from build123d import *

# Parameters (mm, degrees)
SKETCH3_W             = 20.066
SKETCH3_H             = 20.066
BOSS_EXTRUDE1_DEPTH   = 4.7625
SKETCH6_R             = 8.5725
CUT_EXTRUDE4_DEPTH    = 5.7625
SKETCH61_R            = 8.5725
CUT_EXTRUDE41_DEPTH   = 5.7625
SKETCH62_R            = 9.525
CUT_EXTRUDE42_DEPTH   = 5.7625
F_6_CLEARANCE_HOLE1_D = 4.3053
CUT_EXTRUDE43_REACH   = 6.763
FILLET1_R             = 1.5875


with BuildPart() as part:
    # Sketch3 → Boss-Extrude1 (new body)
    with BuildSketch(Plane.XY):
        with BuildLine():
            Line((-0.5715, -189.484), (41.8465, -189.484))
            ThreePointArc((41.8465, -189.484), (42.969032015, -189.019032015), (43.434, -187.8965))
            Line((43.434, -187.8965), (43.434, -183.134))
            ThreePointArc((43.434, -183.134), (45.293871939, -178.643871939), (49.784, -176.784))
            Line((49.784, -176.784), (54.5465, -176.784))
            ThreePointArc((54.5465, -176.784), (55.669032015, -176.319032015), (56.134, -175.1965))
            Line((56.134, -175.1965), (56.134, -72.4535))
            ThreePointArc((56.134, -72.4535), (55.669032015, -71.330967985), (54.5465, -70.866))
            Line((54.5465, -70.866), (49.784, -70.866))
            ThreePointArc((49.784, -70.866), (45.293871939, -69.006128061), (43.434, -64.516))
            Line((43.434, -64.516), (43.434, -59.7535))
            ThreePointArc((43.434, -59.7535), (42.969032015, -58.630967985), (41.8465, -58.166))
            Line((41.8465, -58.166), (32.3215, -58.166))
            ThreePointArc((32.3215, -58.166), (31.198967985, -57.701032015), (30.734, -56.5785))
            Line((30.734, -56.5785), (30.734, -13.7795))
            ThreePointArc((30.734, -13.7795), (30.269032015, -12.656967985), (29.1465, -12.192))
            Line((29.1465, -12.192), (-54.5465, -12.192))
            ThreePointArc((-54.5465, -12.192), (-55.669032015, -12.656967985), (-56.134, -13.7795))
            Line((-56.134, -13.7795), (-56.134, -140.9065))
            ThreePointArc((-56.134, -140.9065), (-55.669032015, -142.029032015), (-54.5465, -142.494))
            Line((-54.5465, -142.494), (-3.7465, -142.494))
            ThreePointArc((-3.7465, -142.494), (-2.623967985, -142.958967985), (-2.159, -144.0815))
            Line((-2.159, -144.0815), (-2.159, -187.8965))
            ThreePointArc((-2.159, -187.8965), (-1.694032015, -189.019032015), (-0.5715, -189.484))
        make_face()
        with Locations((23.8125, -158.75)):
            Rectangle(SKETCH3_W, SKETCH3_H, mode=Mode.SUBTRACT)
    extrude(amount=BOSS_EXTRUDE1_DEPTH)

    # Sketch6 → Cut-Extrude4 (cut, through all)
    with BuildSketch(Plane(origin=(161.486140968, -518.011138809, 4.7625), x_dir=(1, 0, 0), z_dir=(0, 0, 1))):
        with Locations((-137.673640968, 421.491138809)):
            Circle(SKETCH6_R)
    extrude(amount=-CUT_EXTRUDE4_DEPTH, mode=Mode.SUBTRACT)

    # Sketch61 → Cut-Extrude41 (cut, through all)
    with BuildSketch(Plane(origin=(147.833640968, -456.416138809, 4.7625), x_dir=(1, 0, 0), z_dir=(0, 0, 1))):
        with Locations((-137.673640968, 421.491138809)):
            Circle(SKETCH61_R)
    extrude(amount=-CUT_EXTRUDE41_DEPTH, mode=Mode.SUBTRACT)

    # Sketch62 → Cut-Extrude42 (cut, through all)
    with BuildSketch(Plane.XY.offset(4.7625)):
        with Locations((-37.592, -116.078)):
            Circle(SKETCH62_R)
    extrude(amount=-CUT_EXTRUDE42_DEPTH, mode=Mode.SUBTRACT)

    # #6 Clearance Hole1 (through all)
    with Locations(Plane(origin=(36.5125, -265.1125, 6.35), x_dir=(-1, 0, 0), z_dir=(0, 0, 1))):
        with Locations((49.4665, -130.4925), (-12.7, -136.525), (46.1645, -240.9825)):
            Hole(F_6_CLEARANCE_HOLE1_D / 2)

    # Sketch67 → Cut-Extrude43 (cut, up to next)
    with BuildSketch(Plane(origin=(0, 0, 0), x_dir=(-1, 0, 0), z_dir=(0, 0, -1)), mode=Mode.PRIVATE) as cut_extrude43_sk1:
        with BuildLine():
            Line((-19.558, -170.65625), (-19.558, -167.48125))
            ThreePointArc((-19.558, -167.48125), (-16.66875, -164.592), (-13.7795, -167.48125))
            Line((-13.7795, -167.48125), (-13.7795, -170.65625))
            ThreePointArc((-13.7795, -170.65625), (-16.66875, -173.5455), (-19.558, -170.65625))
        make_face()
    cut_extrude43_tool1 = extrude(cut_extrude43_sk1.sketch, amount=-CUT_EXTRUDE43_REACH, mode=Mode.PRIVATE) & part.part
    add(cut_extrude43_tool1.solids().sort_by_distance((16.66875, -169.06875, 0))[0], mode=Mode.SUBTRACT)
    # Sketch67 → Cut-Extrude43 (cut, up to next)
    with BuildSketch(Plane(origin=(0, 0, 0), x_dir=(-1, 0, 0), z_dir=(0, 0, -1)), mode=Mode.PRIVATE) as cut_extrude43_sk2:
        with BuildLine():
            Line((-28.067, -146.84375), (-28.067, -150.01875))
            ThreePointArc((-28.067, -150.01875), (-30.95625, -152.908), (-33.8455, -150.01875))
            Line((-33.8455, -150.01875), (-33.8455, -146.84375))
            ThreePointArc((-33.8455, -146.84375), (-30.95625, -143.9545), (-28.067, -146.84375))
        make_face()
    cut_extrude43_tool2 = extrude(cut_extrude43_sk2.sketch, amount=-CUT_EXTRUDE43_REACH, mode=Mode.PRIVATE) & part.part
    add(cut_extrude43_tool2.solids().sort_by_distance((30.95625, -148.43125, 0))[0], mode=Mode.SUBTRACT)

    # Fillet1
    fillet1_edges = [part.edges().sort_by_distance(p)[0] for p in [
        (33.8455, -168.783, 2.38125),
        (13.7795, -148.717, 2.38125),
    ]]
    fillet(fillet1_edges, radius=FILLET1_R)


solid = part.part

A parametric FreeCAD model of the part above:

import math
import FreeCAD as App
import Part
import Sketcher

V = App.Vector
Q = App.Units.Quantity


def edges_at(feature, points):
    """Names of the edges that pass closest to the given points."""
    edges = feature.Shape.Edges
    near = lambda p: min(range(len(edges)), key=lambda i: edges[i].distToShape(Part.Vertex(*p))[0])
    return sorted({f"Edge{near(p) + 1}" for p in points})


def add_polygon(sketch, points):
    """Adds a closed chain of lines whose ends are joined by coincident constraints."""
    first, n = sketch.GeometryCount, len(points)
    for a, b in zip(points, points[1:] + points[:1]):
        sketch.addGeometry(Part.LineSegment(App.Vector(*a, 0), App.Vector(*b, 0)), False)
    for i in range(n):
        sketch.addConstraint(Sketcher.Constraint("Coincident", first + i, 2, first + (i + 1) % n, 1))

doc = App.newDocument("Part")
body = doc.addObject("PartDesign::Body", "Body")

# Sketch on XY plane
sketch1 = body.newObject("Sketcher::SketchObject", "Sketch")
sketch1.AttachmentSupport = (doc.getObject("XY_Plane"), [""])
sketch1.MapMode = "FlatFace"
sketch1.addGeometry(Part.LineSegment(V(-0.5715, -189.484, 0), V(41.8465, -189.484, 0)), False)  # 0
sketch1.addGeometry(Part.ArcOfCircle(Part.Circle(V(41.8465, -187.8965, 0), V(0, 0, 1), 1.5875), math.radians(-90), math.radians(0)), False)  # 1
sketch1.addGeometry(Part.LineSegment(V(43.434, -187.8965, 0), V(43.434, -183.134, 0)), False)  # 2
sketch1.addGeometry(Part.ArcOfCircle(Part.Circle(V(49.784, -183.134, 0), V(0, 0, 1), 6.35), math.radians(90), math.radians(180)), False)  # 3
sketch1.addGeometry(Part.LineSegment(V(49.784, -176.784, 0), V(54.5465, -176.784, 0)), False)  # 4
sketch1.addGeometry(Part.ArcOfCircle(Part.Circle(V(54.5465, -175.1965, 0), V(0, 0, 1), 1.5875), math.radians(-90), math.radians(0)), False)  # 5
sketch1.addGeometry(Part.LineSegment(V(56.134, -175.1965, 0), V(56.134, -72.4535, 0)), False)  # 6
sketch1.addGeometry(Part.ArcOfCircle(Part.Circle(V(54.5465, -72.4535, 0), V(0, 0, 1), 1.5875), math.radians(0), math.radians(90)), False)  # 7
sketch1.addGeometry(Part.LineSegment(V(54.5465, -70.866, 0), V(49.784, -70.866, 0)), False)  # 8
sketch1.addGeometry(Part.ArcOfCircle(Part.Circle(V(49.784, -64.516, 0), V(0, 0, 1), 6.35), math.radians(180), math.radians(270)), False)  # 9
sketch1.addGeometry(Part.LineSegment(V(43.434, -64.516, 0), V(43.434, -59.7535, 0)), False)  # 10
sketch1.addGeometry(Part.ArcOfCircle(Part.Circle(V(41.8465, -59.7535, 0), V(0, 0, 1), 1.5875), math.radians(0), math.radians(90)), False)  # 11
sketch1.addGeometry(Part.LineSegment(V(41.8465, -58.166, 0), V(32.3215, -58.166, 0)), False)  # 12
sketch1.addGeometry(Part.ArcOfCircle(Part.Circle(V(32.3215, -56.5785, 0), V(0, 0, 1), 1.5875), math.radians(180), math.radians(270)), False)  # 13
sketch1.addGeometry(Part.LineSegment(V(30.734, -56.5785, 0), V(30.734, -13.7795, 0)), False)  # 14
sketch1.addGeometry(Part.ArcOfCircle(Part.Circle(V(29.1465, -13.7795, 0), V(0, 0, 1), 1.5875), math.radians(0), math.radians(90)), False)  # 15
sketch1.addGeometry(Part.LineSegment(V(29.1465, -12.192, 0), V(-54.5465, -12.192, 0)), False)  # 16
sketch1.addGeometry(Part.ArcOfCircle(Part.Circle(V(-54.5465, -13.7795, 0), V(0, 0, 1), 1.5875), math.radians(90), math.radians(180)), False)  # 17
sketch1.addGeometry(Part.LineSegment(V(-56.134, -13.7795, 0), V(-56.134, -140.9065, 0)), False)  # 18
sketch1.addGeometry(Part.ArcOfCircle(Part.Circle(V(-54.5465, -140.9065, 0), V(0, 0, 1), 1.5875), math.radians(180), math.radians(270)), False)  # 19
sketch1.addGeometry(Part.LineSegment(V(-54.5465, -142.494, 0), V(-3.7465, -142.494, 0)), False)  # 20
sketch1.addGeometry(Part.ArcOfCircle(Part.Circle(V(-3.7465, -144.0815, 0), V(0, 0, 1), 1.5875), math.radians(0), math.radians(90)), False)  # 21
sketch1.addGeometry(Part.LineSegment(V(-2.159, -144.0815, 0), V(-2.159, -187.8965, 0)), False)  # 22
sketch1.addGeometry(Part.ArcOfCircle(Part.Circle(V(-0.5715, -187.8965, 0), V(0, 0, 1), 1.5875), math.radians(180), math.radians(270)), False)  # 23
add_polygon(sketch1, [(33.8455, -168.783), (13.7795, -168.783), (13.7795, -148.717), (33.8455, -148.717)])  # lines 24-27
sketch1.addConstraint(Sketcher.Constraint("Tangent", 0, 2, 1, 1))
sketch1.addConstraint(Sketcher.Constraint("Tangent", 1, 2, 2, 1))
sketch1.addConstraint(Sketcher.Constraint("Tangent", 2, 2, 3, 2))
sketch1.addConstraint(Sketcher.Constraint("Tangent", 3, 1, 4, 1))
sketch1.addConstraint(Sketcher.Constraint("Tangent", 4, 2, 5, 1))
sketch1.addConstraint(Sketcher.Constraint("Tangent", 5, 2, 6, 1))
sketch1.addConstraint(Sketcher.Constraint("Tangent", 6, 2, 7, 1))
sketch1.addConstraint(Sketcher.Constraint("Tangent", 7, 2, 8, 1))
sketch1.addConstraint(Sketcher.Constraint("Tangent", 8, 2, 9, 2))
sketch1.addConstraint(Sketcher.Constraint("Tangent", 9, 1, 10, 1))
sketch1.addConstraint(Sketcher.Constraint("Tangent", 10, 2, 11, 1))
sketch1.addConstraint(Sketcher.Constraint("Tangent", 11, 2, 12, 1))
sketch1.addConstraint(Sketcher.Constraint("Tangent", 12, 2, 13, 2))
sketch1.addConstraint(Sketcher.Constraint("Tangent", 13, 1, 14, 1))
sketch1.addConstraint(Sketcher.Constraint("Tangent", 14, 2, 15, 1))
sketch1.addConstraint(Sketcher.Constraint("Tangent", 15, 2, 16, 1))
sketch1.addConstraint(Sketcher.Constraint("Tangent", 16, 2, 17, 1))
sketch1.addConstraint(Sketcher.Constraint("Tangent", 17, 2, 18, 1))
sketch1.addConstraint(Sketcher.Constraint("Tangent", 18, 2, 19, 1))
sketch1.addConstraint(Sketcher.Constraint("Tangent", 19, 2, 20, 1))
sketch1.addConstraint(Sketcher.Constraint("Tangent", 20, 2, 21, 2))
sketch1.addConstraint(Sketcher.Constraint("Tangent", 21, 1, 22, 1))
sketch1.addConstraint(Sketcher.Constraint("Tangent", 22, 2, 23, 1))
sketch1.addConstraint(Sketcher.Constraint("Tangent", 23, 2, 0, 1))
sketch1.addConstraint(Sketcher.Constraint("Horizontal", 0))
sketch1.addConstraint(Sketcher.Constraint("Vertical", 2))
sketch1.addConstraint(Sketcher.Constraint("Horizontal", 4))
sketch1.addConstraint(Sketcher.Constraint("Vertical", 6))
sketch1.addConstraint(Sketcher.Constraint("Horizontal", 8))
sketch1.addConstraint(Sketcher.Constraint("Vertical", 10))
sketch1.addConstraint(Sketcher.Constraint("Horizontal", 12))
sketch1.addConstraint(Sketcher.Constraint("Vertical", 14))
sketch1.addConstraint(Sketcher.Constraint("Horizontal", 16))
sketch1.addConstraint(Sketcher.Constraint("Vertical", 18))
sketch1.addConstraint(Sketcher.Constraint("Horizontal", 20))
sketch1.addConstraint(Sketcher.Constraint("Vertical", 22))
sketch1.addConstraint(Sketcher.Constraint("Horizontal", 24))
sketch1.addConstraint(Sketcher.Constraint("Vertical", 25))
sketch1.addConstraint(Sketcher.Constraint("Horizontal", 26))
sketch1.addConstraint(Sketcher.Constraint("Vertical", 27))
sketch1.addConstraint(Sketcher.Constraint("Equal", 1, 5))
sketch1.addConstraint(Sketcher.Constraint("Equal", 5, 7))
sketch1.addConstraint(Sketcher.Constraint("Equal", 3, 9))
sketch1.addConstraint(Sketcher.Constraint("Equal", 7, 11))
sketch1.addConstraint(Sketcher.Constraint("Equal", 11, 13))
sketch1.addConstraint(Sketcher.Constraint("Equal", 13, 15))
sketch1.addConstraint(Sketcher.Constraint("Equal", 15, 17))
sketch1.addConstraint(Sketcher.Constraint("Equal", 17, 19))
sketch1.addConstraint(Sketcher.Constraint("Equal", 19, 21))
sketch1.addConstraint(Sketcher.Constraint("Equal", 21, 23))
sketch1.addConstraint(Sketcher.Constraint("Vertical", 3, 3, 9, 3))
sketch1.addConstraint(Sketcher.Constraint("Equal", 8, 2))
sketch1.addConstraint(Sketcher.Constraint("Equal", 2, 10))
sketch1.addConstraint(Sketcher.Constraint("Equal", 26, 25))
sketch1.addConstraint(Sketcher.Constraint("DistanceX", 20, 1, 20, 2, Q("2 in")))
sketch1.addConstraint(Sketcher.Constraint("Radius", 3, Q("0.25 in")))
sketch1.addConstraint(Sketcher.Constraint("Radius", 1, Q("0.0625 in")))
sketch1.addConstraint(Sketcher.Constraint("DistanceX", 15, 3, 7, 3, Q("1 in")))
sketch1.addConstraint(Sketcher.Constraint("DistanceX", 0, 1, 0, 2, Q("1.67 in")))
sketch1.addConstraint(Sketcher.Constraint("DistanceX", 24, 2, 24, 1, Q("0.79 in")))
sketch1.addConstraint(Sketcher.Constraint("DistanceX", 1, 3, 5, 3, Q("0.5 in")))
sketch1.addConstraint(Sketcher.Constraint("DistanceY", 2, 2, 19, 2, Q("1.6 in")))
sketch1.addConstraint(Sketcher.Constraint("DistanceY", 6, 1, 6, 2, Q("4.045 in")))
sketch1.addConstraint(Sketcher.Constraint("DistanceY", 14, 1, 14, 2, Q("1.685 in")))
sketch1.addConstraint(Sketcher.Constraint("DistanceX", -1, 1, 3, 3, Q("1.96 in")))
sketch1.addConstraint(Sketcher.Constraint("DistanceY", 3, 3, -1, 1, Q("7.21 in")))
sketch1.addConstraint(Sketcher.Constraint("DistanceX", 21, 3, 24, 2, Q("0.69 in")))
sketch1.addConstraint(Sketcher.Constraint("DistanceY", 24, 2, -1, 1, Q("6.645 in")))
pad1 = body.newObject("PartDesign::Pad", "Pad")
pad1.Profile = sketch1
pad1.Length = Q("0.1875 in")

# Sketch on XY plane
sketch2 = body.newObject("Sketcher::SketchObject", "Sketch001")
sketch2.AttachmentSupport = (doc.getObject("XY_Plane"), [""])
sketch2.MapMode = "FlatFace"
sketch2.AttachmentOffset = App.Placement(V(0, 0, 0.1875 * 25.4), App.Rotation())
sketch2.addGeometry(Part.Circle(V(23.8125, -96.52, 0), V(0, 0, 1), 8.5725), False)
sketch2.addConstraint(Sketcher.Constraint("Diameter", 0, Q("0.675 in")))
sketch2.addConstraint(Sketcher.Constraint("DistanceY", 0, 3, -1, 1, Q("3.8 in")))
sketch2.addConstraint(Sketcher.Constraint("DistanceX", -1, 1, 0, 3, Q("0.9375 in")))
pocket1 = body.newObject("PartDesign::Pocket", "Pocket")
pocket1.Profile = sketch2
pocket1.Type = "ThroughAll"

# Sketch on XY plane
sketch3 = body.newObject("Sketcher::SketchObject", "Sketch002")
sketch3.AttachmentSupport = (doc.getObject("XY_Plane"), [""])
sketch3.MapMode = "FlatFace"
sketch3.AttachmentOffset = App.Placement(V(0, 0, 0.1875 * 25.4), App.Rotation())
sketch3.addGeometry(Part.Circle(V(10.16, -34.925, 0), V(0, 0, 1), 8.5725), False)
sketch3.addConstraint(Sketcher.Constraint("Diameter", 0, Q("0.675 in")))
sketch3.addConstraint(Sketcher.Constraint("DistanceX", -1, 1, 0, 3, Q("0.4 in")))
sketch3.addConstraint(Sketcher.Constraint("DistanceY", 0, 3, -1, 1, Q("1.375 in")))
pocket2 = body.newObject("PartDesign::Pocket", "Pocket001")
pocket2.Profile = sketch3
pocket2.Type = "ThroughAll"

# Sketch on XY plane
sketch4 = body.newObject("Sketcher::SketchObject", "Sketch003")
sketch4.AttachmentSupport = (doc.getObject("XY_Plane"), [""])
sketch4.MapMode = "FlatFace"
sketch4.AttachmentOffset = App.Placement(V(0, 0, 0.1875 * 25.4), App.Rotation())
sketch4.addGeometry(Part.Circle(V(-37.592, -116.078, 0), V(0, 0, 1), 9.525), False)
sketch4.addConstraint(Sketcher.Constraint("Diameter", 0, Q("0.75 in")))
sketch4.addConstraint(Sketcher.Constraint("DistanceX", 0, 3, -1, 1, Q("1.48 in")))
sketch4.addConstraint(Sketcher.Constraint("DistanceY", 0, 3, -1, 1, Q("4.57 in")))
pocket3 = body.newObject("PartDesign::Pocket", "Pocket002")
pocket3.Profile = sketch4
pocket3.Type = "ThroughAll"

# Sketch on XY plane
sketch5 = body.newObject("Sketcher::SketchObject", "Sketch004")
sketch5.AttachmentSupport = (doc.getObject("XY_Plane"), [""])
sketch5.MapMode = "FlatFace"
sketch5.AttachmentOffset = App.Placement(V(0, 0, 0.25 * 25.4), App.Rotation())
sketch5.addGeometry(Part.Circle(V(-12.954, -134.62, 0), V(0, 0, 1), 2.15265), False)
sketch5.addGeometry(Part.Circle(V(49.2125, -128.5875, 0), V(0, 0, 1), 2.15265), False)
sketch5.addGeometry(Part.Circle(V(-9.652, -24.13, 0), V(0, 0, 1), 2.15265), False)
sketch5.addConstraint(Sketcher.Constraint("Equal", 0, 1))
sketch5.addConstraint(Sketcher.Constraint("Equal", 1, 2))
sketch5.addConstraint(Sketcher.Constraint("Diameter", 0, Q("0.1695 in")))
sketch5.addConstraint(Sketcher.Constraint("DistanceY", 0, 3, -1, 1, Q("5.3 in")))
sketch5.addConstraint(Sketcher.Constraint("DistanceX", 0, 3, -1, 1, Q("0.51 in")))
sketch5.addConstraint(Sketcher.Constraint("DistanceX", 2, 3, -1, 1, Q("0.38 in")))
sketch5.addConstraint(Sketcher.Constraint("DistanceY", 2, 3, -1, 1, Q("0.95 in")))
sketch5.addConstraint(Sketcher.Constraint("DistanceX", -1, 1, 1, 3, Q("1.9375 in")))
sketch5.addConstraint(Sketcher.Constraint("DistanceY", 1, 3, -1, 1, Q("5.0625 in")))
doc.recompute()
hole = body.newObject("PartDesign::Hole", "Hole")
hole.Profile = sketch5
hole.ThreadType = "None"
hole.Diameter = Q("0.1695 in")
hole.DepthType = "ThroughAll"

# Sketch on XY plane
sketch6 = body.newObject("Sketcher::SketchObject", "Sketch005")
sketch6.AttachmentSupport = (doc.getObject("XY_Plane"), [""])
sketch6.MapMode = "FlatFace"
sketch6.addGeometry(Part.LineSegment(V(19.558, -167.48125, 0), V(19.558, -170.65625, 0)), False)
sketch6.addGeometry(Part.ArcOfCircle(Part.Circle(V(16.66875, -170.65625, 0), V(0, 0, 1), 2.88925), math.radians(180), math.radians(360)), False)
sketch6.addGeometry(Part.LineSegment(V(13.7795, -170.65625, 0), V(13.7795, -167.48125, 0)), False)
sketch6.addGeometry(Part.ArcOfCircle(Part.Circle(V(16.66875, -167.48125, 0), V(0, 0, 1), 2.88925), math.radians(0), math.radians(180)), False)
sketch6.addConstraint(Sketcher.Constraint("Tangent", 0, 2, 1, 2))
sketch6.addConstraint(Sketcher.Constraint("Tangent", 1, 1, 2, 1))
sketch6.addConstraint(Sketcher.Constraint("Tangent", 2, 2, 3, 2))
sketch6.addConstraint(Sketcher.Constraint("Tangent", 3, 1, 0, 1))
sketch6.addConstraint(Sketcher.Constraint("Vertical", 0))
sketch6.addConstraint(Sketcher.Constraint("Vertical", 2))
sketch6.addConstraint(Sketcher.Constraint("DistanceY", 0, 2, 0, 1, Q("0.125 in")))
sketch6.addConstraint(Sketcher.Constraint("DistanceX", -1, 1, 0, 2, Q("0.77 in")))
sketch6.addConstraint(Sketcher.Constraint("DistanceX", -1, 1, 1, 3, Q("0.65625 in")))
sketch6.addConstraint(Sketcher.Constraint("DistanceY", 1, 3, -1, 1, Q("6.71875 in")))
pocket4 = body.newObject("PartDesign::Pocket", "Pocket003")
pocket4.Profile = sketch6
pocket4.Type = "UpToFirst"
pocket4.Reversed = True

# Sketch on XY plane
sketch7 = body.newObject("Sketcher::SketchObject", "Sketch006")
sketch7.AttachmentSupport = (doc.getObject("XY_Plane"), [""])
sketch7.MapMode = "FlatFace"
sketch7.addGeometry(Part.LineSegment(V(28.067, -150.01875, 0), V(28.067, -146.84375, 0)), False)
sketch7.addGeometry(Part.ArcOfCircle(Part.Circle(V(30.95625, -146.84375, 0), V(0, 0, 1), 2.88925), math.radians(0), math.radians(180)), False)
sketch7.addGeometry(Part.LineSegment(V(33.8455, -146.84375, 0), V(33.8455, -150.01875, 0)), False)
sketch7.addGeometry(Part.ArcOfCircle(Part.Circle(V(30.95625, -150.01875, 0), V(0, 0, 1), 2.88925), math.radians(180), math.radians(360)), False)
sketch7.addConstraint(Sketcher.Constraint("Tangent", 0, 2, 1, 2))
sketch7.addConstraint(Sketcher.Constraint("Tangent", 1, 1, 2, 1))
sketch7.addConstraint(Sketcher.Constraint("Tangent", 2, 2, 3, 2))
sketch7.addConstraint(Sketcher.Constraint("Tangent", 3, 1, 0, 1))
sketch7.addConstraint(Sketcher.Constraint("Vertical", 0))
sketch7.addConstraint(Sketcher.Constraint("Vertical", 2))
sketch7.addConstraint(Sketcher.Constraint("DistanceY", 0, 1, 0, 2, Q("0.125 in")))
sketch7.addConstraint(Sketcher.Constraint("DistanceX", -1, 1, 1, 3, Q("1.21875 in")))
sketch7.addConstraint(Sketcher.Constraint("DistanceY", 1, 3, -1, 1, Q("5.78125 in")))
sketch7.addConstraint(Sketcher.Constraint("DistanceX", -1, 1, 0, 2, Q("1.105 in")))
pocket5 = body.newObject("PartDesign::Pocket", "Pocket004")
pocket5.Profile = sketch7
pocket5.Type = "UpToFirst"
pocket5.Reversed = True
doc.recompute()

fillet = body.newObject("PartDesign::Fillet", "Fillet")
fillet.Base = (pocket5, edges_at(pocket5, [(33.846, -168.783, 2.381), (13.78, -148.717, 2.381)]))
fillet.Radius = Q("0.0625 in")

doc.recompute()
